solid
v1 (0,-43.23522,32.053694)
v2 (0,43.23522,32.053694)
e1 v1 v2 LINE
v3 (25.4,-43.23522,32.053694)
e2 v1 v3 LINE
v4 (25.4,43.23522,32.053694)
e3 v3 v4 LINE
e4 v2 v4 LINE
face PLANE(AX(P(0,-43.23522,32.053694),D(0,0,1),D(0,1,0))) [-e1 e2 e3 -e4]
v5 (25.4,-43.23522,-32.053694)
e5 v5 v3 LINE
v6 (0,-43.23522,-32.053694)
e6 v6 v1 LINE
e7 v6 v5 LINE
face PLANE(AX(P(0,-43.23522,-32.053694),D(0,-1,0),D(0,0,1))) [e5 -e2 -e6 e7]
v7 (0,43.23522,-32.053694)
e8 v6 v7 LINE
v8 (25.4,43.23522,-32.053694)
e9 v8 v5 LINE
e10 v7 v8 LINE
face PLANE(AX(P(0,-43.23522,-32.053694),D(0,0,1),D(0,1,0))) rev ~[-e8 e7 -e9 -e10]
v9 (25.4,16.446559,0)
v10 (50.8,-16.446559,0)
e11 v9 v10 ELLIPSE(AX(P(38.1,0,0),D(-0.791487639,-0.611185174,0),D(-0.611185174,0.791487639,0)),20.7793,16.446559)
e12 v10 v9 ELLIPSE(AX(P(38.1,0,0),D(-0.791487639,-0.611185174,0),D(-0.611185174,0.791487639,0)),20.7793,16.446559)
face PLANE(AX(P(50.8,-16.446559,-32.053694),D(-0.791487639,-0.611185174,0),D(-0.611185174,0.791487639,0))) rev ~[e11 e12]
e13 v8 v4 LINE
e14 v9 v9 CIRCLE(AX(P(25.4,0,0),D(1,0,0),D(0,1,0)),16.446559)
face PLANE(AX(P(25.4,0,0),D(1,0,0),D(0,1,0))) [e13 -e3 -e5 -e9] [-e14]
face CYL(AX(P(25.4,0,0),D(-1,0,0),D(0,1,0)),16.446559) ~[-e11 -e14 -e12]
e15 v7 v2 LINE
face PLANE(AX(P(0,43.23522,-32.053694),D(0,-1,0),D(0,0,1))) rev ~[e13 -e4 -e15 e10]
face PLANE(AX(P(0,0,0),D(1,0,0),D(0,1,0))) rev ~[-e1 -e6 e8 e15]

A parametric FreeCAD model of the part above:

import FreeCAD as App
import Part
import Sketcher
Q = App.Units.Quantity


def add_polygon(sketch, points):
    """Adds a closed chain of lines whose ends are joined by coincident constraints."""
    first, n = sketch.GeometryCount, len(points)
    for a, b in zip(points, points[1:] + points[:1]):
        sketch.addGeometry(Part.LineSegment(App.Vector(*a, 0), App.Vector(*b, 0)), False)
    for i in range(n):
        sketch.addConstraint(Sketcher.Constraint("Coincident", first + i, 2, first + (i + 1) % n, 1))

doc = App.newDocument("Part")
body = doc.addObject("PartDesign::Body", "Body")

sketch1 = doc.addObject("Sketcher::SketchObject", "Sketch")
body.addObject(sketch1)
sketch1.AttachmentSupport = (doc.YZ_Plane, [""])
sketch1.MapMode = "FlatFace"
add_polygon(sketch1, [(-43, 32), (-43, -32), (43, -32), (43, 32)])
sketch1.addConstraint([
    Sketcher.Constraint("Vertical", 0),
    Sketcher.Constraint("Horizontal", 1),
    Sketcher.Constraint("Vertical", 2),
    Sketcher.Constraint("Horizontal", 3),
    Sketcher.Constraint("Symmetric", 0, 2, 2, 2, -1, 1),
    Sketcher.Constraint("DistanceX", 1, 1, 1, 2, Q("86.47044 mm")),
    Sketcher.Constraint("DistanceY", 0, 2, 0, 1, Q("64.107388 mm")),
])
pad1 = doc.addObject("PartDesign::Pad", "Pad")
body.addObject(pad1)
pad1.Profile = sketch1
pad1.Length = Q("1 in")

sketch2 = doc.addObject("Sketcher::SketchObject", "Sketch001")
body.addObject(sketch2)
sketch2.AttachmentSupport = (doc.YZ_Plane, [""])
sketch2.MapMode = "FlatFace"
sketch2.AttachmentOffset = App.Placement(App.Vector(0, 0, 1 * 25.4), App.Rotation())
sketch2.addGeometry(Part.Circle(App.Vector(0, 0, 0), App.Vector(0, 0, 1), 16), False)
sketch2.addConstraint([
    Sketcher.Constraint("Coincident", 0, 3, -1, 1),
    Sketcher.Constraint("Diameter", 0, Q("32.893118 mm")),
])
pad2 = doc.addObject("PartDesign::Pad", "Pad001")
body.addObject(pad2)
pad2.Profile = sketch2
pad2.Length = Q("1 in")

sketch3 = doc.addObject("Sketcher::SketchObject", "Sketch002")
body.addObject(sketch3)
sketch3.AttachmentSupport = (doc.XY_Plane, [""])
sketch3.MapMode = "FlatFace"
sketch3.AttachmentOffset = App.Placement(App.Vector(0, 0, -32.053694), App.Rotation())
add_polygon(sketch3, [(51, 16), (51, -16), (25, 16)])
sketch3.addConstraint([
    Sketcher.Constraint("Vertical", 0),
    Sketcher.Constraint("Horizontal", 2),
    Sketcher.Constraint("DistanceX", 2, 1, 2, 2, Q("1 in")),
    Sketcher.Constraint("DistanceX", -1, 1, 0, 2, Q("2 in")),
    Sketcher.Constraint("Distance", 1, Q("41.5586 mm")),
    Sketcher.Constraint("DistanceY", 0, 2, -1, 1, Q("16.446559 mm")),
])
pocket1 = doc.addObject("PartDesign::Pocket", "Pocket")
body.addObject(pocket1)
pocket1.Profile = sketch3
pocket1.Type = "ThroughAll"
pocket1.Reversed = True

doc.recompute()
